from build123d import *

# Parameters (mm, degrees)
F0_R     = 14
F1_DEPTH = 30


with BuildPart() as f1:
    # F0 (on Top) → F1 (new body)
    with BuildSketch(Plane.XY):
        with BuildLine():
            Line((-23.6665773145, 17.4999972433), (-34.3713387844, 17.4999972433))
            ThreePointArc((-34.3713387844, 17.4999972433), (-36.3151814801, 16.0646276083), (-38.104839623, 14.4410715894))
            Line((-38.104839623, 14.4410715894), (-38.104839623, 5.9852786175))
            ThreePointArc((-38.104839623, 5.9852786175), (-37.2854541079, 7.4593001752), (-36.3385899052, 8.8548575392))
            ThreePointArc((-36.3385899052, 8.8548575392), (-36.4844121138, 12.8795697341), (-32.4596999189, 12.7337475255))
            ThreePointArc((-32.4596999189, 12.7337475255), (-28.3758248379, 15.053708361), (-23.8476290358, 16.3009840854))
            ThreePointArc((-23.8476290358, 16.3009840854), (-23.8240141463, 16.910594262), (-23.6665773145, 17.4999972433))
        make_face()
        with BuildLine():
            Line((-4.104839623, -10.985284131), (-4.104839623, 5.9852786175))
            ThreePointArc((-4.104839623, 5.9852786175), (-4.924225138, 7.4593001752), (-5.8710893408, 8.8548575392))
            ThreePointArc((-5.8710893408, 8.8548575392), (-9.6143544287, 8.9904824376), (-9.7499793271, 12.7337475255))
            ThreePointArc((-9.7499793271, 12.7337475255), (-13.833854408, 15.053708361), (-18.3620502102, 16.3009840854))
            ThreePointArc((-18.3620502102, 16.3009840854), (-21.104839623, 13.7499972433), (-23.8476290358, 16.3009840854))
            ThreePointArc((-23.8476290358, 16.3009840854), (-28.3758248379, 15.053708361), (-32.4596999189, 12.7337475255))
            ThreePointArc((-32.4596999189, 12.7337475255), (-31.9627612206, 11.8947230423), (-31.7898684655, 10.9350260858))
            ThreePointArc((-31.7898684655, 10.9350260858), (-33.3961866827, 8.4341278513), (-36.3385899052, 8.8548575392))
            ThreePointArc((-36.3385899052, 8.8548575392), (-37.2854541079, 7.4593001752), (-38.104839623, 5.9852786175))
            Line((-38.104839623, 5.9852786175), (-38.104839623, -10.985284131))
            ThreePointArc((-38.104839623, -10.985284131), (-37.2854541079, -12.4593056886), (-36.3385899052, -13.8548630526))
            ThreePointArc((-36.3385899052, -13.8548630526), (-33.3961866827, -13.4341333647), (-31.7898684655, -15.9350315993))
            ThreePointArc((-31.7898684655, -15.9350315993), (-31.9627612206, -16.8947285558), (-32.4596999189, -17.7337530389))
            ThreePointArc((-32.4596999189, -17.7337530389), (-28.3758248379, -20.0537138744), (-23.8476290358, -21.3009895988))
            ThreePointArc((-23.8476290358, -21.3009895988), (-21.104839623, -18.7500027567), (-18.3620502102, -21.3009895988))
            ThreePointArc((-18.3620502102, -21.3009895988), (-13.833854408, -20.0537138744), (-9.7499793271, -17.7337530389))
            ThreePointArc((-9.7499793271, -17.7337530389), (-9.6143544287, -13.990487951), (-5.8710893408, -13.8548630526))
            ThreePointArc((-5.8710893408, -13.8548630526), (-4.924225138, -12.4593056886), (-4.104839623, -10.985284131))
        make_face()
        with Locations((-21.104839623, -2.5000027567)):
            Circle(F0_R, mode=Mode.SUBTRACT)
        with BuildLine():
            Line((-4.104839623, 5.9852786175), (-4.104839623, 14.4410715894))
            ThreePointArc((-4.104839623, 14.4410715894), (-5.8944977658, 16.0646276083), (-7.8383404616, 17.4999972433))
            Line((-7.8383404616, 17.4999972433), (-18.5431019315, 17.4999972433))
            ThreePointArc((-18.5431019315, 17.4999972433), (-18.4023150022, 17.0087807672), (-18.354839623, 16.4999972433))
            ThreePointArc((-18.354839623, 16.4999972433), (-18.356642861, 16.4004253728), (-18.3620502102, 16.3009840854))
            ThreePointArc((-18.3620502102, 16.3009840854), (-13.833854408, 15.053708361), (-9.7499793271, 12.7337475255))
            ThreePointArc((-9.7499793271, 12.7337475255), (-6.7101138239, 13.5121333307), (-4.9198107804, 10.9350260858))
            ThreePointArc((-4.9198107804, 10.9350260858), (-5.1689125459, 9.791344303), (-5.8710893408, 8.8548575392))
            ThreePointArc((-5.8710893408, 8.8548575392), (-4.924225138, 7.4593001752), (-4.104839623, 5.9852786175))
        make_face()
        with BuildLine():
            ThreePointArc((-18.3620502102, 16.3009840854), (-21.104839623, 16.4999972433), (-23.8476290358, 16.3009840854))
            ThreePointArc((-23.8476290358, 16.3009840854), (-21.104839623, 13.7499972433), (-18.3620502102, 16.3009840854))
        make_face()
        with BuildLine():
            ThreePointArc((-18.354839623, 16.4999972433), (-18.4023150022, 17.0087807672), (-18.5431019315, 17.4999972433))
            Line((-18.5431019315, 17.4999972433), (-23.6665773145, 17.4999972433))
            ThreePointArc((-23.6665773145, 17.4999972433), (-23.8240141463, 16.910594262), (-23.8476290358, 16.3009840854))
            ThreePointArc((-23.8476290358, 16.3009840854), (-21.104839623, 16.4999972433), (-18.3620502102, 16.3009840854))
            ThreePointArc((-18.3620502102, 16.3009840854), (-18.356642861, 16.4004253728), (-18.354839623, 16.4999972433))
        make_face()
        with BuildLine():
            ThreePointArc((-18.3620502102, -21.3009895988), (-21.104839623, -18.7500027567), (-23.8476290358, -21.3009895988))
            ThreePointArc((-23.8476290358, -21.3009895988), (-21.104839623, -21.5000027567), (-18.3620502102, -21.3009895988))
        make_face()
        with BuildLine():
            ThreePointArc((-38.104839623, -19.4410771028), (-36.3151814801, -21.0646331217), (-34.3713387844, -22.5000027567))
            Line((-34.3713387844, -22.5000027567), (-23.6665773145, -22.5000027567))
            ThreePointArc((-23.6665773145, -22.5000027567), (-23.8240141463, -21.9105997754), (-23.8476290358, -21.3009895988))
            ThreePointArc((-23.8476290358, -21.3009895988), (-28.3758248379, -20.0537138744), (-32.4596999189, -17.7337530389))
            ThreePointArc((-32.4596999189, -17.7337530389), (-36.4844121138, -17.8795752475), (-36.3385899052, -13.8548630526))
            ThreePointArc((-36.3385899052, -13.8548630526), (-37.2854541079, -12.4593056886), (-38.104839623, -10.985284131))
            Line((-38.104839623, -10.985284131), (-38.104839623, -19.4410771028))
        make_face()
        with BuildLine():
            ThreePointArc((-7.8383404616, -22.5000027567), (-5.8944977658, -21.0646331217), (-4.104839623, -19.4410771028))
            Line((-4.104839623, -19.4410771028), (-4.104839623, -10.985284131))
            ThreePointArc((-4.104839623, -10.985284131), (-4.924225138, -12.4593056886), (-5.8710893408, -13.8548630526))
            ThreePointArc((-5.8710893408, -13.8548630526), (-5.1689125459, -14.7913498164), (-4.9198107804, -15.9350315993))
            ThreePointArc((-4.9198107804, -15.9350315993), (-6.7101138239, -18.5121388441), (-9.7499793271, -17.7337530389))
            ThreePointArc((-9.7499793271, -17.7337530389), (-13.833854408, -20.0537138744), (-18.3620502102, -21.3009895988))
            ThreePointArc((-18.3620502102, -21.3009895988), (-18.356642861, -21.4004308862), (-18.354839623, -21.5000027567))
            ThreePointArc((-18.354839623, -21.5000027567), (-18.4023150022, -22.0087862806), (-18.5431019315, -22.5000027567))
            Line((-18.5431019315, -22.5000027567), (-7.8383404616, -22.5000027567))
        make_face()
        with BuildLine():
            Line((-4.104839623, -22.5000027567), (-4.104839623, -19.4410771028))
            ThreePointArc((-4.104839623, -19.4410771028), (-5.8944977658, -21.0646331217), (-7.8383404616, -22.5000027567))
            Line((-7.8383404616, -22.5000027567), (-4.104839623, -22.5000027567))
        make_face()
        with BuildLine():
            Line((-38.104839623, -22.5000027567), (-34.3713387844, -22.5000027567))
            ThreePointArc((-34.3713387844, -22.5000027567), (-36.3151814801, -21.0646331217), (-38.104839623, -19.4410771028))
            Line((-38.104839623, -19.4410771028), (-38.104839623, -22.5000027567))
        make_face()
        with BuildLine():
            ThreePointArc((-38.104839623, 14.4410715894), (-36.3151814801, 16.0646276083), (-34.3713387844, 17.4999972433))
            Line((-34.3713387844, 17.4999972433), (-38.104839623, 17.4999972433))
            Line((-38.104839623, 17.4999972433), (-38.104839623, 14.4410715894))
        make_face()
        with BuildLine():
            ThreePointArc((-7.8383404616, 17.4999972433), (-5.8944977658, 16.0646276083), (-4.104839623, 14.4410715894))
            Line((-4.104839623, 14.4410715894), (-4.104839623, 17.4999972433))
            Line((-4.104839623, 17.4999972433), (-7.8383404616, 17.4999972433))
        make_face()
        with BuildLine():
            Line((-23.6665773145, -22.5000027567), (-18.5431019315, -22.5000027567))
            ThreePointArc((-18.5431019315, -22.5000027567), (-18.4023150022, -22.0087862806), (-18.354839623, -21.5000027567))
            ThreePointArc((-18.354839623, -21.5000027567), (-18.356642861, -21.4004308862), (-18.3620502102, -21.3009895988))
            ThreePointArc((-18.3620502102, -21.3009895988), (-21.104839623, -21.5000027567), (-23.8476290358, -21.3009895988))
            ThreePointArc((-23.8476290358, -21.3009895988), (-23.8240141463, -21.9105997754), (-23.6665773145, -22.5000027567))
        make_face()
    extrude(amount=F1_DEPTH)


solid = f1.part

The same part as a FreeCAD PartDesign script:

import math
import FreeCAD as App
import Part
import Sketcher

doc = App.newDocument("Part")
body = doc.addObject("PartDesign::Body", "Body")

# Sketch on XY plane
sketch1 = doc.addObject("Sketcher::SketchObject", "Sketch")
body.addObject(sketch1)
sketch1.AttachmentSupport = (doc.XY_Plane, [""])
sketch1.MapMode = "FlatFace"
sketch1.addGeometry([
    Part.LineSegment(App.Vector(-38.10484, -22.500003, 0), App.Vector(-4.10484, -22.500003, 0)),  # 0
    Part.LineSegment(App.Vector(-4.10484, -22.500003, 0), App.Vector(-4.10484, 17.499997, 0)),  # 1
    Part.LineSegment(App.Vector(-4.10484, 17.499997, 0), App.Vector(-38.10484, 17.499997, 0)),  # 2
    Part.LineSegment(App.Vector(-38.10484, 17.499997, 0), App.Vector(-38.10484, -22.500003, 0)),  # 3
    Part.ArcOfCircle(Part.Circle(App.Vector(-7.669811, -15.935032, 0), App.Vector(0, 0, 1), 2.75), math.radians(49.150033), math.radians(220.849967)),  # 4
    Part.ArcOfCircle(Part.Circle(App.Vector(-7.669811, -15.935032, 0), App.Vector(0, 0, 1), 2.75), math.radians(0), math.radians(49.150033)),  # 5
    Part.ArcOfCircle(Part.Circle(App.Vector(-7.669811, -15.935032, 0), App.Vector(0, 0, 1), 2.75), math.radians(-139.150033), math.radians(0)),  # 6
    Part.ArcOfCircle(Part.Circle(App.Vector(-34.539868, -15.935032, 0), App.Vector(0, 0, 1), 2.75), math.radians(0), math.radians(130.849967)),  # 7
    Part.ArcOfCircle(Part.Circle(App.Vector(-34.539868, -15.935032, 0), App.Vector(0, 0, 1), 2.75), math.radians(-40.849967), math.radians(0)),  # 8
    Part.ArcOfCircle(Part.Circle(App.Vector(-34.539868, -15.935032, 0), App.Vector(0, 0, 1), 2.75), math.radians(130.849967), math.radians(319.150033)),  # 9
    Part.ArcOfCircle(Part.Circle(App.Vector(-7.669811, 10.935026, 0), App.Vector(0, 0, 1), 2.75), math.radians(139.150033), math.radians(310.849967)),  # 10
    Part.ArcOfCircle(Part.Circle(App.Vector(-7.669811, 10.935026, 0), App.Vector(0, 0, 1), 2.75), math.radians(0), math.radians(139.150033)),  # 11
    Part.ArcOfCircle(Part.Circle(App.Vector(-7.669811, 10.935026, 0), App.Vector(0, 0, 1), 2.75), math.radians(-49.150033), math.radians(0)),  # 12
    Part.Circle(App.Vector(-21.10484, -2.500003, 0), App.Vector(0, 0, 1), 14),  # 13
    Part.ArcOfCircle(Part.Circle(App.Vector(-34.539868, 10.935026, 0), App.Vector(0, 0, 1), 2.75), math.radians(40.849967), math.radians(229.150033)),  # 14
    Part.ArcOfCircle(Part.Circle(App.Vector(-34.539868, 10.935026, 0), App.Vector(0, 0, 1), 2.75), math.radians(0), math.radians(40.849967)),  # 15
    Part.ArcOfCircle(Part.Circle(App.Vector(-34.539868, 10.935026, 0), App.Vector(0, 0, 1), 2.75), math.radians(-130.849967), math.radians(0)),  # 16
], False)
sketch1.addConstraint([
    Sketcher.Constraint("Coincident", 0, 2, 1, 1),
    Sketcher.Constraint("Coincident", 1, 2, 2, 1),
    Sketcher.Constraint("Coincident", 2, 2, 3, 1),
    Sketcher.Constraint("Coincident", 3, 2, 0, 1),
    Sketcher.Constraint("Tangent", 4, 1, 5, 2),
    Sketcher.Constraint("Tangent", 5, 1, 6, 2),
    Sketcher.Constraint("Tangent", 6, 1, 4, 2),
    Sketcher.Constraint("Tangent", 7, 1, 8, 2),
    Sketcher.Constraint("Tangent", 8, 1, 9, 2),
    Sketcher.Constraint("Tangent", 9, 1, 7, 2),
    Sketcher.Constraint("Tangent", 10, 1, 11, 2),
    Sketcher.Constraint("Tangent", 11, 1, 12, 2),
    Sketcher.Constraint("Tangent", 12, 1, 10, 2),
    Sketcher.Constraint("Tangent", 14, 1, 15, 2),
    Sketcher.Constraint("Tangent", 15, 1, 16, 2),
    Sketcher.Constraint("Tangent", 16, 1, 14, 2),
    Sketcher.Constraint("Horizontal", 0),
    Sketcher.Constraint("Vertical", 1),
    Sketcher.Constraint("Horizontal", 2),
    Sketcher.Constraint("Vertical", 3),
    Sketcher.Constraint("Equal", 6, 7),
    Sketcher.Constraint("Equal", 9, 10),
    Sketcher.Constraint("Equal", 12, 14),
    Sketcher.Constraint("Horizontal", 6, 3, 7, 3),
    Sketcher.Constraint("Horizontal", 12, 3, 14, 3),
    Sketcher.Constraint("Horizontal", 9, 3, 5, 1),
    Sketcher.Constraint("Horizontal", 5, 1, 7, 1),
    Sketcher.Constraint("Horizontal", 6, 1, 8, 1),
    Sketcher.Constraint("Horizontal", 4, 1, 9, 1),
    Sketcher.Constraint("Horizontal", 16, 3, 11, 1),
    Sketcher.Constraint("Horizontal", 10, 1, 14, 1),
    Sketcher.Constraint("Horizontal", 11, 1, 15, 1),
    Sketcher.Constraint("Horizontal", 12, 1, 16, 1),
    Sketcher.Constraint("Vertical", 6, 3, 10, 3),
    Sketcher.Constraint("Vertical", 9, 3, 14, 3),
    Sketcher.Constraint("Vertical", 6, 1, 10, 1),
    Sketcher.Constraint("Vertical", 4, 1, 12, 1),
    Sketcher.Constraint("Diameter", 13, 28.0),
    Sketcher.Constraint("DistanceX", 0, 1, 0, 2, 34.0),
    Sketcher.Constraint("DistanceY", 1, 1, 1, 2, 40.0),
    Sketcher.Constraint("Radius", 4, 2.75),
    Sketcher.Constraint("DistanceX", 13, 3, 0, 2, 17.0),
    Sketcher.Constraint("DistanceY", 0, 2, 13, 3, 20.0),
    Sketcher.Constraint("DistanceX", 8, 1, -1, 1, 32.4597),
    Sketcher.Constraint("DistanceX", 4, 3, -1, 1, 7.669811),
    Sketcher.Constraint("DistanceY", 4, 3, -1, 1, 15.935032),
    Sketcher.Constraint("DistanceX", 7, 3, -1, 1, 34.539868),
    Sketcher.Constraint("DistanceX", 13, 3, -1, 1, 21.10484),
    Sketcher.Constraint("DistanceX", 4, 1, -1, 1, 5.871089),
    Sketcher.Constraint("DistanceY", 5, 3, 13, 3, 13.435029),
    Sketcher.Constraint("DistanceY", 13, 3, 14, 3, 13.435029),
])
pad1 = doc.addObject("PartDesign::Pad", "Pad")
body.addObject(pad1)
pad1.Profile = sketch1
pad1.Length = 30

doc.recompute()
